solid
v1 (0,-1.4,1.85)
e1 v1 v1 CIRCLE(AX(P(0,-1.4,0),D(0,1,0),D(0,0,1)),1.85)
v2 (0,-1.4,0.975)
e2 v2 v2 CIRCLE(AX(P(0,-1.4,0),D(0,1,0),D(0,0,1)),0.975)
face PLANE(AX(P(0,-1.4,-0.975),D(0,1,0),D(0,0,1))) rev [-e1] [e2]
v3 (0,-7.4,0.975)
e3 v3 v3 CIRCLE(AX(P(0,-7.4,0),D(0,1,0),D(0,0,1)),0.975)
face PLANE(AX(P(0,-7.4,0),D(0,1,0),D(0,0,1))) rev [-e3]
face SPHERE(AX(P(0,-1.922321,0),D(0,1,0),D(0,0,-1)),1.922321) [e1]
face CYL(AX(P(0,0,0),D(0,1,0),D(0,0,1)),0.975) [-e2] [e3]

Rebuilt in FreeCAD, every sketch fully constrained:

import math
import FreeCAD as App
import Part
import Sketcher
Q = App.Units.Quantity

doc = App.newDocument("Part")
body = doc.addObject("PartDesign::Body", "Body")

# Sketch on YZ plane
sketch1 = body.newObject("Sketcher::SketchObject", "Sketch")
sketch1.AttachmentSupport = (doc.getObject("YZ_Plane"), [""])
sketch1.MapMode = "FlatFace"
sketch1.addGeometry(Part.LineSegment(App.Vector(-7.4, 0, 0), App.Vector(-7.4, -1, 0)), False)
sketch1.addGeometry(Part.LineSegment(App.Vector(-7.4, -1, 0), App.Vector(-1.4, -1, 0)), False)
sketch1.addGeometry(Part.LineSegment(App.Vector(-1.4, -1, 0), App.Vector(-1.4, -1.9, 0)), False)
sketch1.addGeometry(Part.ArcOfCircle(Part.Circle(App.Vector(-1.9, 0, 0), App.Vector(0, 0, 1), 1.9), math.radians(-74), math.radians(0)), False)
sketch1.addGeometry(Part.LineSegment(App.Vector(0, 0, 0), App.Vector(-7.4, 0, 0)), False)
sketch1.addConstraint(Sketcher.Constraint("Coincident", 0, 2, 1, 1))
sketch1.addConstraint(Sketcher.Constraint("Coincident", 1, 2, 2, 1))
sketch1.addConstraint(Sketcher.Constraint("Coincident", 2, 2, 3, 1))
sketch1.addConstraint(Sketcher.Constraint("Coincident", 3, 2, 4, 1))
sketch1.addConstraint(Sketcher.Constraint("Coincident", 4, 2, 0, 1))
sketch1.addConstraint(Sketcher.Constraint("Vertical", 0))
sketch1.addConstraint(Sketcher.Constraint("Horizontal", 1))
sketch1.addConstraint(Sketcher.Constraint("Vertical", 2))
sketch1.addConstraint(Sketcher.Constraint("Horizontal", 4))
sketch1.addConstraint(Sketcher.Constraint("Coincident", 3, 2, -1, 1))
sketch1.addConstraint(Sketcher.Constraint("PointOnObject", 3, 3, -1))
sketch1.addConstraint(Sketcher.Constraint("DistanceX", 1, 1, 1, 2, Q("6 mm")))
sketch1.addConstraint(Sketcher.Constraint("DistanceX", 4, 2, 4, 1, Q("7.4 mm")))
sketch1.addConstraint(Sketcher.Constraint("DistanceY", 0, 2, 0, 1, Q("0.975 mm")))
sketch1.addConstraint(Sketcher.Constraint("DistanceY", 2, 2, 2, 1, Q("0.875 mm")))
revolution = body.newObject("PartDesign::Revolution", "Revolution")
revolution.Profile = sketch1
revolution.ReferenceAxis = (sketch1, ["H_Axis"])
revolution.Angle = 360

doc.recompute()
